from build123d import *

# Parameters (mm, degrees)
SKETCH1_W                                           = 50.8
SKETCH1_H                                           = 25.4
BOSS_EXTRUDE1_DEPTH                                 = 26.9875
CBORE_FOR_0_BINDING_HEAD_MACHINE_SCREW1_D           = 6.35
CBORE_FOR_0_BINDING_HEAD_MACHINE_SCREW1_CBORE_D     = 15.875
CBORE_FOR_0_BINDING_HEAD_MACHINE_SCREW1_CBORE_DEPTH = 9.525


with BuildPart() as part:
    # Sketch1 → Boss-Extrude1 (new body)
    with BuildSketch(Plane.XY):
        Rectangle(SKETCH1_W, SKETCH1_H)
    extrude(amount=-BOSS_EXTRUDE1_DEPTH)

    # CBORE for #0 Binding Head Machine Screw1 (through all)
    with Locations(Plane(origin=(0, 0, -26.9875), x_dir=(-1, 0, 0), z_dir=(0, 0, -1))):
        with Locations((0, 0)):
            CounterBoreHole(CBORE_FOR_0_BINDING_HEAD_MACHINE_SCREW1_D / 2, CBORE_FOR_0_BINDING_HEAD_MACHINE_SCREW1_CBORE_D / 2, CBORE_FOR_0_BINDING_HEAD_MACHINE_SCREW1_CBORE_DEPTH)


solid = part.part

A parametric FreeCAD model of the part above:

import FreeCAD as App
import Part
import Sketcher

V = App.Vector
Q = App.Units.Quantity


def add_polygon(sketch, points):
    """Adds a closed chain of lines whose ends are joined by coincident constraints."""
    first, n = sketch.GeometryCount, len(points)
    for a, b in zip(points, points[1:] + points[:1]):
        sketch.addGeometry(Part.LineSegment(App.Vector(*a, 0), App.Vector(*b, 0)), False)
    for i in range(n):
        sketch.addConstraint(Sketcher.Constraint("Coincident", first + i, 2, first + (i + 1) % n, 1))

doc = App.newDocument("Part")
body = doc.addObject("PartDesign::Body", "Body")

# Sketch on XY plane
sketch1 = body.newObject("Sketcher::SketchObject", "Sketch")
sketch1.AttachmentSupport = (doc.getObject("XY_Plane"), [""])
sketch1.MapMode = "FlatFace"
add_polygon(sketch1, [(-25, 13), (-25, -13), (25, -13), (25, 13)])  # lines 0-3
sketch1.addConstraint([
    Sketcher.Constraint("Vertical", 0),
    Sketcher.Constraint("Horizontal", 1),
    Sketcher.Constraint("Vertical", 2),
    Sketcher.Constraint("Horizontal", 3),
    Sketcher.Constraint("Symmetric", 0, 2, 2, 2, -1, 1),
    Sketcher.Constraint("DistanceX", 1, 1, 1, 2, Q("2 in")),
    Sketcher.Constraint("DistanceY", 0, 2, 0, 1, Q("1 in")),
])
pad1 = body.newObject("PartDesign::Pad", "Pad")
pad1.Profile = sketch1
pad1.Length = Q("1.0625 in")
pad1.Reversed = True

# Sketch on XY plane
sketch2 = body.newObject("Sketcher::SketchObject", "Sketch001")
sketch2.AttachmentSupport = (doc.getObject("XY_Plane"), [""])
sketch2.MapMode = "FlatFace"
sketch2.AttachmentOffset = App.Placement(V(0, 0, -1.0625 * 25.4), App.Rotation())
sketch2.addGeometry(Part.Circle(V(0, 0, 0), V(0, 0, 1), 3.2), False)
sketch2.addConstraint([
    Sketcher.Constraint("Coincident", 0, 3, -1, 1),
    Sketcher.Constraint("Diameter", 0, Q("0.25 in")),
])
doc.recompute()
hole = body.newObject("PartDesign::Hole", "Hole")
hole.Profile = sketch2
hole.ThreadType = "None"
hole.Diameter = Q("0.25 in")
hole.DepthType = "ThroughAll"
hole.HoleCutType = "Counterbore"
hole.HoleCutDiameter = Q("0.625 in")
hole.HoleCutDepth = Q("0.375 in")
hole.Reversed = True

doc.recompute()
